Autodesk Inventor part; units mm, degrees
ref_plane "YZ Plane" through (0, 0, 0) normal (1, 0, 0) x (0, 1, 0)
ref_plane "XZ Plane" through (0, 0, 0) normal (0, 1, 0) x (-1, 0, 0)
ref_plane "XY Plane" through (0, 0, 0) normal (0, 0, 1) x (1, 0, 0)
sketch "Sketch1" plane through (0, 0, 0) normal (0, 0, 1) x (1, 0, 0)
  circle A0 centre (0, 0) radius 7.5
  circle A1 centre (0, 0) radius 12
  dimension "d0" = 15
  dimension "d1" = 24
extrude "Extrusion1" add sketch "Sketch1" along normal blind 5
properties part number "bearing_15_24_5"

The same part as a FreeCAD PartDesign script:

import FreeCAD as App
import Part
import Sketcher

V = App.Vector

doc = App.newDocument("Part")
params = doc.addObject("Spreadsheet::Sheet", "Params")
for row, (alias, value) in enumerate([
    ("sketch1_diameter", "24 mm"),
    ("sketch1_diameter2", "15 mm"),
    ("pad1_length", "5 mm"),
], start=1):
    params.set(f"A{row}", alias)
    params.set(f"B{row}", "=" + value)
    params.setAlias(f"B{row}", alias)

body = doc.addObject("PartDesign::Body", "Body")

# Sketch on XY plane
sketch1 = body.newObject("Sketcher::SketchObject", "Sketch")
sketch1.AttachmentSupport = (doc.getObject("XY_Plane"), [""])
sketch1.MapMode = "FlatFace"
sketch1.addGeometry(Part.Circle(V(0, 0, 0), V(0, 0, 1), 12), False)
sketch1.addGeometry(Part.Circle(V(0, 0, 0), V(0, 0, 1), 8), False)
sketch1.addConstraint(Sketcher.Constraint("Coincident", 0, 3, -1, 1))
sketch1.addConstraint(Sketcher.Constraint("Coincident", 1, 3, -1, 1))
sketch1.addConstraint(Sketcher.Constraint("Diameter", 0, 24.0))
sketch1.addConstraint(Sketcher.Constraint("Diameter", 1, 15.0))
sketch1.setExpression("Constraints[2]", "Params.sketch1_diameter")
sketch1.setExpression("Constraints[3]", "Params.sketch1_diameter2")
pad1 = body.newObject("PartDesign::Pad", "Pad")
pad1.Profile = sketch1
pad1.setExpression("Length", "Params.pad1_length")

doc.recompute()
